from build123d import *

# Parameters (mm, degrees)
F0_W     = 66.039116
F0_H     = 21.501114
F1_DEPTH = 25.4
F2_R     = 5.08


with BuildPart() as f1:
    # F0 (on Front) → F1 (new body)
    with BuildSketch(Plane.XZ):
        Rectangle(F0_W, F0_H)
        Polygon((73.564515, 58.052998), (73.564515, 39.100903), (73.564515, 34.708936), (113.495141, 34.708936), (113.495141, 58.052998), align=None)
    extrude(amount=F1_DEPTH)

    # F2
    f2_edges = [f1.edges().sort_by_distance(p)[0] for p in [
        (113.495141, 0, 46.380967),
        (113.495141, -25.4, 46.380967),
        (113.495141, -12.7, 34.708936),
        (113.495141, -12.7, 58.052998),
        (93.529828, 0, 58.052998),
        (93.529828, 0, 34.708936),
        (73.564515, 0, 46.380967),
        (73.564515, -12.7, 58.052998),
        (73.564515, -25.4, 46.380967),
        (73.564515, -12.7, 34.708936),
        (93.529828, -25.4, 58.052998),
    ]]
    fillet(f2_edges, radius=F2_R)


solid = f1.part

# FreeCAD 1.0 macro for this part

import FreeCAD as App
import Part
import Sketcher
Q = App.Units.Quantity


def edges_at(feature, points):
    """Names of the edges that pass closest to the given points."""
    edges = feature.Shape.Edges
    near = lambda p: min(range(len(edges)), key=lambda i: edges[i].distToShape(Part.Vertex(*p))[0])
    return sorted({f"Edge{near(p) + 1}" for p in points})


def add_polygon(sketch, points):
    """Adds a closed chain of lines whose ends are joined by coincident constraints."""
    first, n = sketch.GeometryCount, len(points)
    for a, b in zip(points, points[1:] + points[:1]):
        sketch.addGeometry(Part.LineSegment(App.Vector(*a, 0), App.Vector(*b, 0)), False)
    for i in range(n):
        sketch.addConstraint(Sketcher.Constraint("Coincident", first + i, 2, first + (i + 1) % n, 1))

doc = App.newDocument("Part")
body = doc.addObject("PartDesign::Body", "Body")
body.AllowCompound = True

# Sketch on XZ plane
sketch1 = body.newObject("Sketcher::SketchObject", "Sketch")
sketch1.AttachmentSupport = (doc.getObject("XZ_Plane"), [""])
sketch1.MapMode = "FlatFace"
add_polygon(sketch1, [(-33, 11), (-33, -11), (33, -11), (33, 11)])  # lines 0-3
add_polygon(sketch1, [(74, 58), (74, 35), (113, 35), (113, 58)])  # lines 4-7
sketch1.addConstraint([
    Sketcher.Constraint("Vertical", 0),
    Sketcher.Constraint("Horizontal", 1),
    Sketcher.Constraint("Vertical", 2),
    Sketcher.Constraint("Horizontal", 3),
    Sketcher.Constraint("Vertical", 4),
    Sketcher.Constraint("Horizontal", 5),
    Sketcher.Constraint("Vertical", 6),
    Sketcher.Constraint("Horizontal", 7),
    Sketcher.Constraint("Symmetric", 0, 2, 2, 2, -1, 1),
    Sketcher.Constraint("DistanceY", -1, 1, 6, 2, 58.052998),
    Sketcher.Constraint("DistanceX", 3, 2, 5, 2, 146.514699),
    Sketcher.Constraint("DistanceX", 1, 1, 1, 2, 66.039116),
    Sketcher.Constraint("DistanceX", 5, 1, 5, 2, 39.930626),
    Sketcher.Constraint("DistanceY", 0, 2, 0, 1, 21.501114),
    Sketcher.Constraint("DistanceY", 4, 2, 4, 1, 23.344062),
])
pad1 = body.newObject("PartDesign::Pad", "Pad")
pad1.Profile = sketch1
pad1.Length = Q("1 in")
doc.recompute()

fillet = body.newObject("PartDesign::Fillet", "Fillet")
fillet.Base = (pad1, edges_at(pad1, [
    (113.495, 0, 46.381),
    (113.495, -25.4, 46.381),
    (113.495, -12.7, 34.709),
    (113.495, -12.7, 58.053),
    (93.53, 0, 58.053),
    (93.53, 0, 34.709),
    (73.565, 0, 46.381),
    (73.565, -12.7, 58.053),
    (73.565, -25.4, 46.381),
    (73.565, -12.7, 34.709),
    (93.53, -25.4, 58.053),
]))
fillet.Radius = Q("0.2 in")

doc.recompute()
